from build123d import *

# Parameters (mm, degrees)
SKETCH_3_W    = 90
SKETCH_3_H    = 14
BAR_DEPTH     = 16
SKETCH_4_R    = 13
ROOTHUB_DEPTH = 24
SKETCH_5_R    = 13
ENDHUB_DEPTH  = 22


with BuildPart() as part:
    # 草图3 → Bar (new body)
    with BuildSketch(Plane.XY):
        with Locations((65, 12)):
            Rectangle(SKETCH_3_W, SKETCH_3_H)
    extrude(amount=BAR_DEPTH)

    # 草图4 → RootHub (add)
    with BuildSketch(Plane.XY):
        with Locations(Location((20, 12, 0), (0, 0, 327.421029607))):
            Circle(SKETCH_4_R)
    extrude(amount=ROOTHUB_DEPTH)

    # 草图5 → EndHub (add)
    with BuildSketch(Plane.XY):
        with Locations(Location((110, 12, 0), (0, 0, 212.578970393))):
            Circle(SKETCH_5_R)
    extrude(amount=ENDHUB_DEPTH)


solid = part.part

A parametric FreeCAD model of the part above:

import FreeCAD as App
import Part
import Sketcher

doc = App.newDocument("Part")
body = doc.addObject("PartDesign::Body", "Body")

sketch1 = doc.addObject("Sketcher::SketchObject", "Sketch")
body.addObject(sketch1)
sketch1.AttachmentSupport = (doc.XY_Plane, [""])
sketch1.MapMode = "FlatFace"
sketch1.addGeometry(Part.LineSegment(App.Vector(20, 19, 0), App.Vector(20, 5, 0)), False)
sketch1.addGeometry(Part.LineSegment(App.Vector(20, 5, 0), App.Vector(110, 5, 0)), False)
sketch1.addGeometry(Part.LineSegment(App.Vector(110, 5, 0), App.Vector(110, 19, 0)), False)
sketch1.addGeometry(Part.LineSegment(App.Vector(110, 19, 0), App.Vector(20, 19, 0)), False)
sketch1.addConstraint(Sketcher.Constraint("Coincident", 0, 2, 1, 1))
sketch1.addConstraint(Sketcher.Constraint("Coincident", 1, 2, 2, 1))
sketch1.addConstraint(Sketcher.Constraint("Coincident", 2, 2, 3, 1))
sketch1.addConstraint(Sketcher.Constraint("Coincident", 3, 2, 0, 1))
sketch1.addConstraint(Sketcher.Constraint("Vertical", 0))
sketch1.addConstraint(Sketcher.Constraint("Horizontal", 1))
sketch1.addConstraint(Sketcher.Constraint("Vertical", 2))
sketch1.addConstraint(Sketcher.Constraint("Horizontal", 3))
sketch1.addConstraint(Sketcher.Constraint("DistanceX", 1, 1, 1, 2, 90.0))
sketch1.addConstraint(Sketcher.Constraint("DistanceY", 0, 2, 0, 1, 14.0))
sketch1.addConstraint(Sketcher.Constraint("DistanceX", -1, 1, 0, 2, 20.0))
sketch1.addConstraint(Sketcher.Constraint("DistanceY", -1, 1, 0, 2, 5.0))
pad1 = doc.addObject("PartDesign::Pad", "Pad")
body.addObject(pad1)
pad1.Profile = sketch1
pad1.Length = 16

sketch2 = doc.addObject("Sketcher::SketchObject", "Sketch001")
body.addObject(sketch2)
sketch2.AttachmentSupport = (doc.XY_Plane, [""])
sketch2.MapMode = "FlatFace"
sketch2.addGeometry(Part.Circle(App.Vector(20, 12, 0), App.Vector(0, 0, 1), 13), False)
sketch2.addConstraint(Sketcher.Constraint("Diameter", 0, 26.0))
sketch2.addConstraint(Sketcher.Constraint("DistanceX", -1, 1, 0, 3, 20.0))
sketch2.addConstraint(Sketcher.Constraint("DistanceY", -1, 1, 0, 3, 12.0))
pad2 = doc.addObject("PartDesign::Pad", "Pad001")
body.addObject(pad2)
pad2.Profile = sketch2
pad2.Length = 24

sketch3 = doc.addObject("Sketcher::SketchObject", "Sketch002")
body.addObject(sketch3)
sketch3.AttachmentSupport = (doc.XY_Plane, [""])
sketch3.MapMode = "FlatFace"
sketch3.addGeometry(Part.Circle(App.Vector(110, 12, 0), App.Vector(0, 0, 1), 13), False)
sketch3.addConstraint(Sketcher.Constraint("Diameter", 0, 26.0))
sketch3.addConstraint(Sketcher.Constraint("DistanceX", -1, 1, 0, 3, 110.0))
sketch3.addConstraint(Sketcher.Constraint("DistanceY", -1, 1, 0, 3, 12.0))
pad3 = doc.addObject("PartDesign::Pad", "Pad002")
body.addObject(pad3)
pad3.Profile = sketch3
pad3.Length = 22

doc.recompute()
